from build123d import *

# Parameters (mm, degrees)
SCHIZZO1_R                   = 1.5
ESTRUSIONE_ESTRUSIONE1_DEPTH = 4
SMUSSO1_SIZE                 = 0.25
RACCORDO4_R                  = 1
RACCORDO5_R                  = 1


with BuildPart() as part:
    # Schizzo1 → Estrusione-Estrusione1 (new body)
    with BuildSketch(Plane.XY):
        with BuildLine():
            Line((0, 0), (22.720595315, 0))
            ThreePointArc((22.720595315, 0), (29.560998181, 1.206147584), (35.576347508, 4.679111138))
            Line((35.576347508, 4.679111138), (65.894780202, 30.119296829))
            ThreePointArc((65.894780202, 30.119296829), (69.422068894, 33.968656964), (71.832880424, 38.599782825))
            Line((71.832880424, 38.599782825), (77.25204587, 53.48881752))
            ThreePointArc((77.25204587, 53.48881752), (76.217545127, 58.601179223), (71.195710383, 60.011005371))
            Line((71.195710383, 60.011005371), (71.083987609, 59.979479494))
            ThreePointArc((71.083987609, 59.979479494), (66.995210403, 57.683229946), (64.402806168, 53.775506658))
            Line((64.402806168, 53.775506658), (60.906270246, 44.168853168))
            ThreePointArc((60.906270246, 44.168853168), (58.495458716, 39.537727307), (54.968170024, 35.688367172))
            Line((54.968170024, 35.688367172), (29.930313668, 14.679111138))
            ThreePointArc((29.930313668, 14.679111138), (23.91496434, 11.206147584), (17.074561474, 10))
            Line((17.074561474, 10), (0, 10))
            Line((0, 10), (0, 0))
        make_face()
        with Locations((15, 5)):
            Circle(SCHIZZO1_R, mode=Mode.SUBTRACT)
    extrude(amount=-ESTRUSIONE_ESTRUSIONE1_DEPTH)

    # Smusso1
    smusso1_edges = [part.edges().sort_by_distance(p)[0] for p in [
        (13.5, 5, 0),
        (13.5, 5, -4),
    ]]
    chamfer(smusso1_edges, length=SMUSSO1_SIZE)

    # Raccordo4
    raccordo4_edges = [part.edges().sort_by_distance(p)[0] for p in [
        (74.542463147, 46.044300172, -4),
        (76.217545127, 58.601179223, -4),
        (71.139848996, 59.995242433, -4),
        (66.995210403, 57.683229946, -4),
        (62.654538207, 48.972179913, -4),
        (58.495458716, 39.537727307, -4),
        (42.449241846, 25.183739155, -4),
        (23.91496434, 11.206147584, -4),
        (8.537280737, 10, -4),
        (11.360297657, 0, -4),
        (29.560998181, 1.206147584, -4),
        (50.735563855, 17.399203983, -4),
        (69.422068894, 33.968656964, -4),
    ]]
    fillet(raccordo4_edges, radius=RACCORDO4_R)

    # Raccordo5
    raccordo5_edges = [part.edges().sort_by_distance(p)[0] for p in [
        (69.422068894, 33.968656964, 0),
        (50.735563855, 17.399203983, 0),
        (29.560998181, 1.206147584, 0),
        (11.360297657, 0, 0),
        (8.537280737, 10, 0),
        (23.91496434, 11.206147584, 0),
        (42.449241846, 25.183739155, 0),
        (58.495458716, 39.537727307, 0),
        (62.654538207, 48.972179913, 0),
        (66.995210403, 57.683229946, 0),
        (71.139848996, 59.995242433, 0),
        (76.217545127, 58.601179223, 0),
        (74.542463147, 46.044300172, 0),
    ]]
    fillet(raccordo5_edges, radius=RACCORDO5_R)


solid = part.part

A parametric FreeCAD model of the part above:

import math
import FreeCAD as App
import Part
import Sketcher

V = App.Vector
Q = App.Units.Quantity


def edges_at(feature, points):
    """Names of the edges that pass closest to the given points."""
    edges = feature.Shape.Edges
    near = lambda p: min(range(len(edges)), key=lambda i: edges[i].distToShape(Part.Vertex(*p))[0])
    return sorted({f"Edge{near(p) + 1}" for p in points})

doc = App.newDocument("Part")
body = doc.addObject("PartDesign::Body", "Body")

sketch1 = body.newObject("Sketcher::SketchObject", "Sketch")
sketch1.AttachmentSupport = (doc.getObject("XY_Plane"), [""])
sketch1.MapMode = "FlatFace"
sketch1.addGeometry([
    Part.LineSegment(V(0, 0, 0), V(22.72, 0, 0)),
    Part.ArcOfCircle(Part.Circle(V(22.72, 20, 0), V(0, 0, 1), 20), math.radians(-90), math.radians(-50)),
    Part.LineSegment(V(35.58, 4.68, 0), V(65.89, 30.12, 0)),
    Part.ArcOfCircle(Part.Circle(V(53.04, 45.44, 0), V(0, 0, 1), 20), math.radians(-50), math.radians(-20)),
    Part.LineSegment(V(71.83, 38.6, 0), V(77.25, 53.49, 0)),
    Part.ArcOfCircle(Part.Circle(V(72.55, 55.2, 0), V(0, 0, 1), 5), math.radians(-20), math.radians(106)),
    Part.LineSegment(V(71.2, 60.01, 0), V(71.08, 59.98, 0)),
    Part.ArcOfCircle(Part.Circle(V(73.8, 50.36, 0), V(0, 0, 1), 10), math.radians(106), math.radians(160)),
    Part.LineSegment(V(64.4, 53.78, 0), V(60.91, 44.17, 0)),
    Part.ArcOfCircle(Part.Circle(V(42.11, 51.01, 0), V(0, 0, 1), 20), math.radians(-50), math.radians(-20)),
    Part.LineSegment(V(54.97, 35.69, 0), V(29.93, 14.68, 0)),
    Part.ArcOfCircle(Part.Circle(V(17.07, 30, 0), V(0, 0, 1), 20), math.radians(-90), math.radians(-50)),
    Part.LineSegment(V(17.07, 10, 0), V(0, 10, 0)),
    Part.LineSegment(V(0, 10, 0), V(0, 0, 0)),
    Part.Circle(V(15, 5, 0), V(0, 0, 1), 1.5),
], False)
sketch1.addConstraint([
    Sketcher.Constraint("Tangent", 0, 2, 1, 1),
    Sketcher.Constraint("Tangent", 1, 2, 2, 1),
    Sketcher.Constraint("Tangent", 2, 2, 3, 1),
    Sketcher.Constraint("Tangent", 3, 2, 4, 1),
    Sketcher.Constraint("Tangent", 4, 2, 5, 1),
    Sketcher.Constraint("Tangent", 5, 2, 6, 1),
    Sketcher.Constraint("Tangent", 6, 2, 7, 1),
    Sketcher.Constraint("Tangent", 7, 2, 8, 1),
    Sketcher.Constraint("Tangent", 8, 2, 9, 2),
    Sketcher.Constraint("Tangent", 9, 1, 10, 1),
    Sketcher.Constraint("Tangent", 10, 2, 11, 2),
    Sketcher.Constraint("Tangent", 11, 1, 12, 1),
    Sketcher.Constraint("Coincident", 12, 2, 13, 1),
    Sketcher.Constraint("Coincident", 13, 2, 0, 1),
    Sketcher.Constraint("Horizontal", 0),
    Sketcher.Constraint("Horizontal", 12),
    Sketcher.Constraint("Vertical", 13),
    Sketcher.Constraint("Coincident", 13, 2, -1, 1),
    Sketcher.Constraint("Equal", 1, 3),
    Sketcher.Constraint("Equal", 3, 9),
    Sketcher.Constraint("Equal", 9, 11),
    Sketcher.Constraint("Parallel", 4, 8),
    Sketcher.Constraint("Parallel", 2, 10),
    Sketcher.Constraint("Diameter", 14, 3.0),
    Sketcher.Constraint("Radius", 1, 20.0),
    Sketcher.Constraint("Radius", 5, 5.0),
    Sketcher.Constraint("Radius", 7, 10.0),
    Sketcher.Constraint("DistanceY", 13, 2, 13, 1, 10.0),
    Sketcher.Constraint("Angle", 2, Q("40 deg")),
    Sketcher.Constraint("Angle", 4, Q("70 deg")),
    Sketcher.Constraint("DistanceX", -1, 1, 14, 3, 15.0),
    Sketcher.Constraint("DistanceY", -1, 1, 14, 3, 5.0),
    Sketcher.Constraint("Distance", 10, 32.6846),
    Sketcher.Constraint("DistanceX", 12, 2, 12, 1, 17.074561),
    Sketcher.Constraint("DistanceY", 7, 3, 5, 2, 9.6557),
    Sketcher.Constraint("Distance", 4, 15.84458),
    Sketcher.Constraint("DistanceX", 0, 1, 0, 2, 22.720595),
    Sketcher.Constraint("DistanceX", -1, 1, 3, 3, 53.039028),
])
pad1 = body.newObject("PartDesign::Pad", "Pad")
pad1.Profile = sketch1
pad1.Length = 4
pad1.Reversed = True
doc.recompute()

chamfer = body.newObject("PartDesign::Chamfer", "Chamfer")
chamfer.Base = (pad1, edges_at(pad1, [(13.5, 5, 0), (13.5, 5, -4)]))
chamfer.Size = 0.25
doc.recompute()

fillet = body.newObject("PartDesign::Fillet", "Fillet")
fillet.Base = (chamfer, edges_at(chamfer, [
    (74.542, 46.044, -4),
    (76.218, 58.601, -4),
    (71.14, 59.995, -4),
    (66.995, 57.683, -4),
    (62.655, 48.972, -4),
    (58.495, 39.538, -4),
    (42.449, 25.184, -4),
    (23.915, 11.206, -4),
    (8.537, 10, -4),
    (11.36, 0, -4),
    (29.561, 1.206, -4),
    (50.736, 17.399, -4),
    (69.422, 33.969, -4),
]))
fillet.Radius = 1
doc.recompute()

fillet2 = body.newObject("PartDesign::Fillet", "Fillet001")
fillet2.Base = (fillet, edges_at(fillet, [
    (69.422, 33.969, 0),
    (50.736, 17.399, 0),
    (29.561, 1.206, 0),
    (11.36, 0, 0),
    (8.537, 10, 0),
    (23.915, 11.206, 0),
    (42.449, 25.184, 0),
    (58.495, 39.538, 0),
    (62.655, 48.972, 0),
    (66.995, 57.683, 0),
    (71.14, 59.995, 0),
    (76.218, 58.601, 0),
    (74.542, 46.044, 0),
]))
fillet2.Radius = 1

doc.recompute()
